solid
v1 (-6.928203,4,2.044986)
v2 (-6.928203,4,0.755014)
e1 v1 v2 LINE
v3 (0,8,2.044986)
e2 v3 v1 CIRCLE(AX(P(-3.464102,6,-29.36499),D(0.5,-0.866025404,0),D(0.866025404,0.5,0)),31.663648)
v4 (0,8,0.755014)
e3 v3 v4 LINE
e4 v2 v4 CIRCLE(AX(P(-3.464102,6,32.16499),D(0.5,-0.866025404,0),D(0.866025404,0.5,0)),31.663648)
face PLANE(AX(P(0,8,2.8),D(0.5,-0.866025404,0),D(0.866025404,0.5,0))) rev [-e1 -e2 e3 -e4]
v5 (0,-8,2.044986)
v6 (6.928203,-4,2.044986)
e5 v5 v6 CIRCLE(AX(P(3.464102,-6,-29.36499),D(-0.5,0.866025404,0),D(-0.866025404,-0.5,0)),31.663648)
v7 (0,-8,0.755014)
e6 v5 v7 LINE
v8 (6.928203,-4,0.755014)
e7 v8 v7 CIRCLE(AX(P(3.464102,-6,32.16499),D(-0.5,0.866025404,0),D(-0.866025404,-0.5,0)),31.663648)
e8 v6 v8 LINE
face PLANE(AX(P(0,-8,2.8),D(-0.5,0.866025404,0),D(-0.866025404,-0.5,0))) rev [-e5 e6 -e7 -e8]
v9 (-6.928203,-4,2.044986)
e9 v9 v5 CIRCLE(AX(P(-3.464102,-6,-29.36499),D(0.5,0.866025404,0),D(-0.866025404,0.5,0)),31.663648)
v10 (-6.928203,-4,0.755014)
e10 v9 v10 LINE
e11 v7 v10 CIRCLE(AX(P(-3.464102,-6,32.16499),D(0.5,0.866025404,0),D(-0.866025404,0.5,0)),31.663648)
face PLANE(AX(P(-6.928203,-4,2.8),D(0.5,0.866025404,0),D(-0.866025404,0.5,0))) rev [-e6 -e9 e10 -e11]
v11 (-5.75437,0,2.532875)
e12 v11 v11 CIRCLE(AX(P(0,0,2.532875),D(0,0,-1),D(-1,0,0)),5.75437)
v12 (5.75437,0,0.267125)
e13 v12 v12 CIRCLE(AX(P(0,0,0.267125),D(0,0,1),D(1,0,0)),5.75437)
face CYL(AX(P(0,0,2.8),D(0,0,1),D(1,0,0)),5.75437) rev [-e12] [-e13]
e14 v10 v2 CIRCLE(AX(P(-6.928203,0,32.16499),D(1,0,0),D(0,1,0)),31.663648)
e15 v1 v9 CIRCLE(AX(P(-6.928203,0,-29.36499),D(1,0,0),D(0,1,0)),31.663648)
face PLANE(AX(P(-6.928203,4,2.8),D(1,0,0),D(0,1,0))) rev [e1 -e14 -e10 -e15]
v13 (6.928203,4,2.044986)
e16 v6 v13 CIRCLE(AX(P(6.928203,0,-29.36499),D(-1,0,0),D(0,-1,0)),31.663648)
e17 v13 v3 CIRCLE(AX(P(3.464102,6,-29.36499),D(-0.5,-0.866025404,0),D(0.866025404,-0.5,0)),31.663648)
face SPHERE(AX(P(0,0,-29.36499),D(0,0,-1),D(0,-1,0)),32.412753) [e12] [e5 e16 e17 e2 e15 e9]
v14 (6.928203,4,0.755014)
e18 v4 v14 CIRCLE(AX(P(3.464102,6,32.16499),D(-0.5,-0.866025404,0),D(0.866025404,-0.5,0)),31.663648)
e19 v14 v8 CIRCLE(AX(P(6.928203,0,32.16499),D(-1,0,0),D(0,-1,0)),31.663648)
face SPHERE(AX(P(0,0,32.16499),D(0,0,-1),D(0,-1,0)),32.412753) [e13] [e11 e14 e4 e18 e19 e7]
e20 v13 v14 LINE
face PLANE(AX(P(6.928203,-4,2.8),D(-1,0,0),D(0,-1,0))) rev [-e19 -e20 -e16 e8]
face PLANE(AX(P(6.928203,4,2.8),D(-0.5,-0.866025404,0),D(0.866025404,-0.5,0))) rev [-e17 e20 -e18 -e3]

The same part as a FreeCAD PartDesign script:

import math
import FreeCAD as App
import Part
import Sketcher

V = App.Vector
Q = App.Units.Quantity

doc = App.newDocument("Part")
params = doc.addObject("Spreadsheet::Sheet", "Params")
for row, (alias, value) in enumerate([
    ("sketch1_height", "8 mm"),
    ("sketch1_length", "8 mm"),
    ("pad1_length", "2.8 mm"),
    ("hole_diameter", "11.50874 mm"),
    ("groove_angle", "360 deg"),
], start=1):
    params.set(f"A{row}", alias)
    params.set(f"B{row}", "=" + value)
    params.setAlias(f"B{row}", alias)

body = doc.addObject("PartDesign::Body", "Body")

# Sketch on XY plane
sketch1 = body.newObject("Sketcher::SketchObject", "Sketch")
sketch1.AttachmentSupport = (doc.getObject("XY_Plane"), [""])
sketch1.MapMode = "FlatFace"
sketch1.addGeometry([
    Part.LineSegment(V(0, 8, 0), V(-7, 4, 0)),  # 0
    Part.LineSegment(V(-7, 4, 0), V(-7, -4, 0)),  # 1
    Part.LineSegment(V(-7, -4, 0), V(0, -8, 0)),  # 2
    Part.LineSegment(V(0, -8, 0), V(7, -4, 0)),  # 3
    Part.LineSegment(V(7, -4, 0), V(7, 4, 0)),  # 4
    Part.LineSegment(V(7, 4, 0), V(0, 8, 0)),  # 5
], False)
sketch1.addConstraint([
    Sketcher.Constraint("Coincident", 0, 2, 1, 1),
    Sketcher.Constraint("Coincident", 1, 2, 2, 1),
    Sketcher.Constraint("Coincident", 2, 2, 3, 1),
    Sketcher.Constraint("Coincident", 3, 2, 4, 1),
    Sketcher.Constraint("Coincident", 4, 2, 5, 1),
    Sketcher.Constraint("Coincident", 5, 2, 0, 1),
    Sketcher.Constraint("Vertical", 1),
    Sketcher.Constraint("Vertical", 4),
    Sketcher.Constraint("Symmetric", 0, 2, 3, 2, -1, 1),
    Sketcher.Constraint("Symmetric", 2, 2, 5, 2, -1, 1),
    Sketcher.Constraint("PointOnObject", 2, 2, -2),
    Sketcher.Constraint("Parallel", 2, 5),
    Sketcher.Constraint("Horizontal", 1, 2, 3, 2),
    Sketcher.Constraint("DistanceY", 1, 2, 1, 1, Q("8 mm")),
    Sketcher.Constraint("Angle", 0, Q("-150 deg")),
    Sketcher.Constraint("Distance", 0, Q("8 mm")),
])
sketch1.setExpression("Constraints[13]", "Params.sketch1_height")
sketch1.setExpression("Constraints[15]", "Params.sketch1_length")
pad1 = body.newObject("PartDesign::Pad", "Pad")
pad1.Profile = sketch1
pad1.setExpression("Length", "Params.pad1_length")

# Sketch on XY plane
sketch2 = body.newObject("Sketcher::SketchObject", "Sketch001")
sketch2.AttachmentSupport = (doc.getObject("XY_Plane"), [""])
sketch2.MapMode = "FlatFace"
sketch2.AttachmentOffset = App.Placement(V(0, 0, 2.8), App.Rotation())
sketch2.addGeometry(Part.Circle(V(0, 0, 0), V(0, 0, 1), 6), False)
sketch2.addConstraint([
    Sketcher.Constraint("Coincident", 0, 3, -1, 1),
    Sketcher.Constraint("Diameter", 0, Q("11.50874 mm")),
])
doc.recompute()
hole = body.newObject("PartDesign::Hole", "Hole")
hole.Profile = sketch2
hole.ThreadType = "None"
hole.setExpression("Diameter", "Params.hole_diameter")
hole.DepthType = "ThroughAll"

# Sketch on YZ plane
sketch3 = body.newObject("Sketcher::SketchObject", "Sketch002")
sketch3.AttachmentSupport = (doc.getObject("YZ_Plane"), [""])
sketch3.MapMode = "FlatFace"
sketch3.addGeometry([
    Part.LineSegment(V(-1.51, 3.14, 0), V(-8.17, 3.56, 0)),  # 0
    Part.ArcOfCircle(Part.Circle(V(-8.19, 2.79, 0), V(0, 0, 1), 0.77), math.radians(88), math.radians(284)),  # 1
    Part.ArcOfCircle(Part.Circle(V(0, -29.36, 0), V(0, 0, 1), 32.41), math.radians(92.67), math.radians(104.29)),  # 2
    Part.LineSegment(V(-1.51, 3.01, 0), V(-1.51, 3.14, 0)),  # 3
    Part.LineSegment(V(-1.51, -0.34, 0), V(-1.51, -0.21, 0)),  # 4
    Part.ArcOfCircle(Part.Circle(V(0, 32.16, 0), V(0, 0, 1), 32.41), math.radians(-104.29), math.radians(-92.67)),  # 5
    Part.ArcOfCircle(Part.Circle(V(-8.19, 0.01, 0), V(0, 0, 1), 0.77), math.radians(76), math.radians(272)),  # 6
    Part.LineSegment(V(-8.17, -0.76, 0), V(-1.51, -0.34, 0)),  # 7
], False)
sketch3.addConstraint([
    Sketcher.Constraint("Coincident", 0, 2, 1, 1),
    Sketcher.Constraint("Tangent", 1, 2, 2, 2),
    Sketcher.Constraint("Coincident", 2, 1, 3, 1),
    Sketcher.Constraint("Coincident", 3, 2, 0, 1),
    Sketcher.Constraint("Coincident", 4, 2, 5, 2),
    Sketcher.Constraint("Tangent", 5, 1, 6, 1),
    Sketcher.Constraint("Coincident", 6, 2, 7, 1),
    Sketcher.Constraint("Coincident", 7, 2, 4, 1),
    Sketcher.Constraint("Vertical", 3),
    Sketcher.Constraint("Vertical", 4),
    Sketcher.Constraint("Equal", 2, 5),
    Sketcher.Constraint("Equal", 1, 6),
    Sketcher.Constraint("PointOnObject", 2, 3, -2),
    Sketcher.Constraint("PointOnObject", 5, 3, -2),
    Sketcher.Constraint("Vertical", 1, 3, 6, 3),
    Sketcher.Constraint("Vertical", 3, 2, 4, 2),
    Sketcher.Constraint("Vertical", 0, 2, 6, 2),
    Sketcher.Constraint("Equal", 3, 4),
    Sketcher.Constraint("DistanceX", 1, 2, -1, 1, Q("8 mm")),
    Sketcher.Constraint("Radius", 1, Q("0.767896 mm")),
    Sketcher.Constraint("Radius", 2, Q("32.412753 mm")),
    Sketcher.Constraint("DistanceY", 3, 1, 3, 2, Q("0.129291 mm")),
    Sketcher.Constraint("DistanceY", 6, 2, 0, 2, Q("4.313501 mm")),
    Sketcher.Constraint("Distance", 0, Q("6.67194 mm")),
    Sketcher.Constraint("DistanceY", 2, 3, -1, 1, Q("29.36499 mm")),
    Sketcher.Constraint("DistanceY", -1, 1, 5, 3, Q("32.16499 mm")),
])
groove = body.newObject("PartDesign::Groove", "Groove")
groove.Profile = sketch3
groove.ReferenceAxis = (sketch3, ["V_Axis"])
groove.setExpression("Angle", "Params.groove_angle")

doc.recompute()
